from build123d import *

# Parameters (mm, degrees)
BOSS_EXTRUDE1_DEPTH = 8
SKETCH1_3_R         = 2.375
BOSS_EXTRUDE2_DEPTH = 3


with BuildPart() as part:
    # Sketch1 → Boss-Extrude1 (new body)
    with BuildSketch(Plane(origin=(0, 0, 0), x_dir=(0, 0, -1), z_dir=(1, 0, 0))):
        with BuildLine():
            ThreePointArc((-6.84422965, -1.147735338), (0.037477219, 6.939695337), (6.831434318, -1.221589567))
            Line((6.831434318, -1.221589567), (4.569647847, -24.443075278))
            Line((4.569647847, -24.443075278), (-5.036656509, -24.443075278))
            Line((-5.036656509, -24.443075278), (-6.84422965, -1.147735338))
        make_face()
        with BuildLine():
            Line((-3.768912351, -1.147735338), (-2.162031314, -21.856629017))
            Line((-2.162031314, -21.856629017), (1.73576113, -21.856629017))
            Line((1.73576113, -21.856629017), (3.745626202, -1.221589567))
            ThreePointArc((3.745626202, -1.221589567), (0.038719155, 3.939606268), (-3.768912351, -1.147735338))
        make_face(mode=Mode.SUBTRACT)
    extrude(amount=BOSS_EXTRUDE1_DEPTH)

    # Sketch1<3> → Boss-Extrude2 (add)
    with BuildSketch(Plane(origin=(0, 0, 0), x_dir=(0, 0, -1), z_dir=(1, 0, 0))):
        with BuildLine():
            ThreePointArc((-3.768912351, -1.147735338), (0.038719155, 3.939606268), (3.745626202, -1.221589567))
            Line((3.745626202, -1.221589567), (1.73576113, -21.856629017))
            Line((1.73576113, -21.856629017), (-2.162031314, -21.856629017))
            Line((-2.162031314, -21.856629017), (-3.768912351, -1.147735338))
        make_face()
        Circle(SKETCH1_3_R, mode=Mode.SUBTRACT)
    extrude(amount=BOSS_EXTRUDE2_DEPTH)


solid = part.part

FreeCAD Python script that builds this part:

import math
import FreeCAD as App
import Part
import Sketcher

doc = App.newDocument("Part")
body = doc.addObject("PartDesign::Body", "Body")

sketch1 = body.newObject("Sketcher::SketchObject", "Sketch")
sketch1.AttachmentSupport = (doc.getObject("YZ_Plane"), [""])
sketch1.MapMode = "FlatFace"
sketch1.addGeometry(Part.ArcOfCircle(Part.Circle(App.Vector(0, 0, 0), App.Vector(0, 0, 1), 6.939797), math.radians(-100.138412), math.radians(99.519576)), False)
sketch1.addGeometry(Part.LineSegment(App.Vector(-1.147735, 6.84423, 0), App.Vector(-24.443075, 5.036657, 0)), False)
sketch1.addGeometry(Part.LineSegment(App.Vector(-24.443075, 5.036657, 0), App.Vector(-24.443075, -4.569648, 0)), False)
sketch1.addGeometry(Part.LineSegment(App.Vector(-24.443075, -4.569648, 0), App.Vector(-1.22159, -6.831434, 0)), False)
sketch1.addGeometry(Part.ArcOfCircle(Part.Circle(App.Vector(0, 0, 0), App.Vector(0, 0, 1), 3.939797), math.radians(-108.063095), math.radians(106.936905)), False)
sketch1.addGeometry(Part.LineSegment(App.Vector(-1.22159, -3.745626, 0), App.Vector(-21.856629, -1.735761, 0)), False)
sketch1.addGeometry(Part.LineSegment(App.Vector(-21.856629, -1.735761, 0), App.Vector(-21.856629, 2.162031, 0)), False)
sketch1.addGeometry(Part.LineSegment(App.Vector(-21.856629, 2.162031, 0), App.Vector(-1.147735, 3.768912, 0)), False)
sketch1.addConstraint(Sketcher.Constraint("Coincident", 0, 2, 1, 1))
sketch1.addConstraint(Sketcher.Constraint("Coincident", 1, 2, 2, 1))
sketch1.addConstraint(Sketcher.Constraint("Coincident", 2, 2, 3, 1))
sketch1.addConstraint(Sketcher.Constraint("Coincident", 3, 2, 0, 1))
sketch1.addConstraint(Sketcher.Constraint("Coincident", 4, 1, 5, 1))
sketch1.addConstraint(Sketcher.Constraint("Coincident", 5, 2, 6, 1))
sketch1.addConstraint(Sketcher.Constraint("Coincident", 6, 2, 7, 1))
sketch1.addConstraint(Sketcher.Constraint("Coincident", 7, 2, 4, 2))
sketch1.addConstraint(Sketcher.Constraint("Vertical", 2))
sketch1.addConstraint(Sketcher.Constraint("Vertical", 6))
sketch1.addConstraint(Sketcher.Constraint("Coincident", 0, 3, -1, 1))
sketch1.addConstraint(Sketcher.Constraint("Coincident", 4, 3, -1, 1))
sketch1.addConstraint(Sketcher.Constraint("Parallel", 3, 5))
sketch1.addConstraint(Sketcher.Constraint("Parallel", 1, 7))
sketch1.addConstraint(Sketcher.Constraint("Vertical", 3, 2, 4, 1))
sketch1.addConstraint(Sketcher.Constraint("Vertical", 0, 2, 7, 2))
sketch1.addConstraint(Sketcher.Constraint("Radius", 0, 6.939797))
sketch1.addConstraint(Sketcher.Constraint("Radius", 4, 3.939797))
sketch1.addConstraint(Sketcher.Constraint("DistanceY", 6, 2, 0, 2, 4.682198))
sketch1.addConstraint(Sketcher.Constraint("Distance", 5, 20.732689))
sketch1.addConstraint(Sketcher.Constraint("DistanceY", 2, 2, 2, 1, 9.606304))
sketch1.addConstraint(Sketcher.Constraint("DistanceY", 6, 1, 6, 2, 3.897792))
sketch1.addConstraint(Sketcher.Constraint("DistanceY", -1, 1, 0, 2, 6.84423))
sketch1.addConstraint(Sketcher.Constraint("DistanceX", 3, 2, -1, 1, 1.22159))
pad1 = body.newObject("PartDesign::Pad", "Pad")
pad1.Profile = sketch1
pad1.Length = 8

sketch2 = body.newObject("Sketcher::SketchObject", "Sketch001")
sketch2.AttachmentSupport = (doc.getObject("YZ_Plane"), [""])
sketch2.MapMode = "FlatFace"
sketch2.addGeometry(Part.ArcOfCircle(Part.Circle(App.Vector(0, 0, 0), App.Vector(0, 0, 1), 3.939797), math.radians(-108.063095), math.radians(106.936905)), False)
sketch2.addGeometry(Part.LineSegment(App.Vector(-1.147735, 3.768912, 0), App.Vector(-21.856629, 2.162031, 0)), False)
sketch2.addGeometry(Part.LineSegment(App.Vector(-21.856629, 2.162031, 0), App.Vector(-21.856629, -1.735761, 0)), False)
sketch2.addGeometry(Part.LineSegment(App.Vector(-21.856629, -1.735761, 0), App.Vector(-1.22159, -3.745626, 0)), False)
sketch2.addGeometry(Part.Circle(App.Vector(0, 0, 0), App.Vector(0, 0, 1), 2.375), False)
sketch2.addConstraint(Sketcher.Constraint("Coincident", 0, 2, 1, 1))
sketch2.addConstraint(Sketcher.Constraint("Coincident", 1, 2, 2, 1))
sketch2.addConstraint(Sketcher.Constraint("Coincident", 2, 2, 3, 1))
sketch2.addConstraint(Sketcher.Constraint("Coincident", 3, 2, 0, 1))
sketch2.addConstraint(Sketcher.Constraint("Vertical", 2))
sketch2.addConstraint(Sketcher.Constraint("Coincident", 0, 3, -1, 1))
sketch2.addConstraint(Sketcher.Constraint("Coincident", 4, 3, -1, 1))
sketch2.addConstraint(Sketcher.Constraint("Diameter", 4, 4.75))
sketch2.addConstraint(Sketcher.Constraint("Radius", 0, 3.939797))
sketch2.addConstraint(Sketcher.Constraint("Distance", 3, 20.732689))
sketch2.addConstraint(Sketcher.Constraint("DistanceY", 2, 2, 2, 1, 3.897792))
sketch2.addConstraint(Sketcher.Constraint("DistanceX", 1, 2, -1, 1, 21.856629))
sketch2.addConstraint(Sketcher.Constraint("DistanceY", -1, 1, 1, 2, 2.162031))
sketch2.addConstraint(Sketcher.Constraint("DistanceY", 1, 2, 0, 2, 1.606881))
pad2 = body.newObject("PartDesign::Pad", "Pad001")
pad2.Profile = sketch2
pad2.Length = 3

doc.recompute()
